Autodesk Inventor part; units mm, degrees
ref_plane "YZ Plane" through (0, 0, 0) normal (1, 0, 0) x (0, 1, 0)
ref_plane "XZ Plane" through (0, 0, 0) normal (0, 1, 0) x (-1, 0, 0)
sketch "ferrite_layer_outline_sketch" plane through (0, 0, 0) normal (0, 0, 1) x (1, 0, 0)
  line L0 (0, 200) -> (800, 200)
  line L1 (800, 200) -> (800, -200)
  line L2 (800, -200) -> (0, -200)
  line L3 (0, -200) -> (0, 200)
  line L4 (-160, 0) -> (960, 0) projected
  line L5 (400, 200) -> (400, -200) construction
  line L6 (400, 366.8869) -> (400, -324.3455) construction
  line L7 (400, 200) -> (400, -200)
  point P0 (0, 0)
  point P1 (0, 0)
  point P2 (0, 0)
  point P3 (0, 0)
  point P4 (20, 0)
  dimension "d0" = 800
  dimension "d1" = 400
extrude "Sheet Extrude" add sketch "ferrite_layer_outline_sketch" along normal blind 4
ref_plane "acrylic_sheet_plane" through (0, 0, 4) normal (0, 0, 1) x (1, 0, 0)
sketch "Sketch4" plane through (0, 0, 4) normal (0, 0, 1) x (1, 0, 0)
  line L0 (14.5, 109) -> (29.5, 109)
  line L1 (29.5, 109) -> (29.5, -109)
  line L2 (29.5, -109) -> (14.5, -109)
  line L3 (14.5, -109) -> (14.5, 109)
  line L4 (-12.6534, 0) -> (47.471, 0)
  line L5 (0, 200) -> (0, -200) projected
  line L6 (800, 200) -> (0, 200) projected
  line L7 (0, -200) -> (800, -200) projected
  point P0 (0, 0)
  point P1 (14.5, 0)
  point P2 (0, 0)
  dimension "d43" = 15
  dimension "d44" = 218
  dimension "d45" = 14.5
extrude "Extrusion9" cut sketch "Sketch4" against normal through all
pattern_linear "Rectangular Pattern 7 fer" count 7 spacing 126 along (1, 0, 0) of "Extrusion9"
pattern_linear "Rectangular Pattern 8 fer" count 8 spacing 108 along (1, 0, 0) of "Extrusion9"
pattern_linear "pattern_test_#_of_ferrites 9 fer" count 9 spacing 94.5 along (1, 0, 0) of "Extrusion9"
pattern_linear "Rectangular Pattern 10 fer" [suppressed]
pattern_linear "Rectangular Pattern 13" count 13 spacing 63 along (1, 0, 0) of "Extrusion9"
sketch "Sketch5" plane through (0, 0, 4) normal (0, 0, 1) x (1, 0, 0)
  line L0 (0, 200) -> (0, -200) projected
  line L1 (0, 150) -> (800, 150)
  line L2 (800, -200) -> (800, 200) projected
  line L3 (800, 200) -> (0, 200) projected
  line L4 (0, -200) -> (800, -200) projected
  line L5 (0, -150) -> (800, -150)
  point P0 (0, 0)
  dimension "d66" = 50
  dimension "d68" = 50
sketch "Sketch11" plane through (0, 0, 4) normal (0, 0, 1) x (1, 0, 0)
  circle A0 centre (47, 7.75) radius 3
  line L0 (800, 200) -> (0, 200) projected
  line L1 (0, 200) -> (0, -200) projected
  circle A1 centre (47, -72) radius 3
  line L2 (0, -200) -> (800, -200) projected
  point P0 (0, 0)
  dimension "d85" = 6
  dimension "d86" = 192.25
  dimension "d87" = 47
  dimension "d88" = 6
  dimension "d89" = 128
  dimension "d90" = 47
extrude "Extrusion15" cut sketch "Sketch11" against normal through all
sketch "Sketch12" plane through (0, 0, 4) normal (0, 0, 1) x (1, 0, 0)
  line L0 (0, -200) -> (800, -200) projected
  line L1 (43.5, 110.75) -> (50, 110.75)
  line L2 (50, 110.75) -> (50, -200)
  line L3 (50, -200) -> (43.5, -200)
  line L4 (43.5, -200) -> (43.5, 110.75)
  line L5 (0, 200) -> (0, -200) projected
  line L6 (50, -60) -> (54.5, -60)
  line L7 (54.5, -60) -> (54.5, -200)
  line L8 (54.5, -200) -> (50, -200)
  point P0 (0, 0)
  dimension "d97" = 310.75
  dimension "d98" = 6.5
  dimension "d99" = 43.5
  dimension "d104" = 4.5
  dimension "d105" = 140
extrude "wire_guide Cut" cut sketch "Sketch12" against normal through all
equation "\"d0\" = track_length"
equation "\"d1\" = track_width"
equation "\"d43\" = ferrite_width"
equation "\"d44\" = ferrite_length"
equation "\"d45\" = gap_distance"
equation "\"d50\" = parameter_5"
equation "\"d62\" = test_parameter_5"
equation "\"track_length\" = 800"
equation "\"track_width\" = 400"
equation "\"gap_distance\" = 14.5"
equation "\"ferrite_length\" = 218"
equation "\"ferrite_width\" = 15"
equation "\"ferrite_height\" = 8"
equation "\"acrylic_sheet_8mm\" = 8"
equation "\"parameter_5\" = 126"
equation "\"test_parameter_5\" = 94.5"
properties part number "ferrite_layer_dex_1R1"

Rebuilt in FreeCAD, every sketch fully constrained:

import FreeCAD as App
import Part
import Sketcher

V = App.Vector
Q = App.Units.Quantity


def add_polygon(sketch, points):
    """Adds a closed chain of lines whose ends are joined by coincident constraints."""
    first, n = sketch.GeometryCount, len(points)
    for a, b in zip(points, points[1:] + points[:1]):
        sketch.addGeometry(Part.LineSegment(App.Vector(*a, 0), App.Vector(*b, 0)), False)
    for i in range(n):
        sketch.addConstraint(Sketcher.Constraint("Coincident", first + i, 2, first + (i + 1) % n, 1))

doc = App.newDocument("Part")
params = doc.addObject("Spreadsheet::Sheet", "Params")
for row, (alias, value) in enumerate([
    ("sketch1_width", "800 mm"),
    ("sketch1_height", "400 mm"),
    ("pad1_length", "4 mm"),
    ("sketch2_width", "15 mm"),
    ("sketch2_height", "218 mm"),
    ("linearpattern_pitch", "126 mm"),
    ("linearpattern2_pitch", "108 mm"),
    ("linearpattern3_pitch", "94.5 mm"),
    ("linearpattern4_pitch", "63 mm"),
    ("sketch3_diameter", "6 mm"),
    ("sketch4_height", "140 mm"),
    ("sketch4_width", "4.5 mm"),
    ("sketch4_width2", "6.5 mm"),
    ("sketch4_height2", "310.75 mm"),
], start=1):
    params.set(f"A{row}", alias)
    params.set(f"B{row}", "=" + value)
    params.setAlias(f"B{row}", alias)

body = doc.addObject("PartDesign::Body", "Body")

sketch1 = body.newObject("Sketcher::SketchObject", "Sketch")
sketch1.AttachmentSupport = (doc.getObject("XY_Plane"), [""])
sketch1.MapMode = "FlatFace"
add_polygon(sketch1, [(0, 200), (0, -200), (800, -200), (800, 200)])
sketch1.addConstraint([
    Sketcher.Constraint("Vertical", 0),
    Sketcher.Constraint("Horizontal", 1),
    Sketcher.Constraint("Vertical", 2),
    Sketcher.Constraint("Horizontal", 3),
    Sketcher.Constraint("Symmetric", 0, 2, 3, 2, -1, 1),
    Sketcher.Constraint("DistanceX", 1, 1, 1, 2, Q("800 mm")),
    Sketcher.Constraint("DistanceY", 0, 2, 0, 1, Q("400 mm")),
])
sketch1.setExpression("Constraints[9]", "Params.sketch1_width")
sketch1.setExpression("Constraints[10]", "Params.sketch1_height")
pad1 = body.newObject("PartDesign::Pad", "Pad")
pad1.Profile = sketch1
pad1.setExpression("Length", "Params.pad1_length")

sketch2 = body.newObject("Sketcher::SketchObject", "Sketch001")
sketch2.AttachmentSupport = (doc.getObject("XY_Plane"), [""])
sketch2.MapMode = "FlatFace"
sketch2.AttachmentOffset = App.Placement(V(0, 0, 4), App.Rotation())
add_polygon(sketch2, [(30, 109), (14, 109), (14, -109), (30, -109)])
sketch2.addConstraint([
    Sketcher.Constraint("Horizontal", 0),
    Sketcher.Constraint("Vertical", 1),
    Sketcher.Constraint("Horizontal", 2),
    Sketcher.Constraint("Vertical", 3),
    Sketcher.Constraint("DistanceX", 0, 2, 0, 1, Q("15 mm")),
    Sketcher.Constraint("DistanceY", 1, 2, 1, 1, Q("218 mm")),
    Sketcher.Constraint("DistanceX", -1, 1, 0, 2, Q("14.5 mm")),
    Sketcher.Constraint("DistanceY", -1, 1, 0, 2, Q("109 mm")),
])
sketch2.setExpression("Constraints[8]", "Params.sketch2_width")
sketch2.setExpression("Constraints[9]", "Params.sketch2_height")
pocket1 = body.newObject("PartDesign::Pocket", "Pocket")
pocket1.Profile = sketch2
pocket1.Type = "ThroughAll"
doc.recompute()

linearpattern = body.newObject("PartDesign::LinearPattern", "LinearPattern")
linearpattern.Originals = [pocket1]
linearpattern.Direction = (doc.getObject("X_Axis"), [""])
linearpattern.Mode = "offset"
linearpattern.setExpression("Offset", "Params.linearpattern_pitch")
linearpattern.Occurrences = 7
body.Tip = linearpattern
doc.recompute()

linearpattern2 = body.newObject("PartDesign::LinearPattern", "LinearPattern001")
linearpattern2.Originals = [pocket1]
linearpattern2.Direction = (doc.getObject("X_Axis"), [""])
linearpattern2.Mode = "offset"
linearpattern2.setExpression("Offset", "Params.linearpattern2_pitch")
linearpattern2.Occurrences = 8
body.Tip = linearpattern2
doc.recompute()

linearpattern3 = body.newObject("PartDesign::LinearPattern", "LinearPattern002")
linearpattern3.Originals = [pocket1]
linearpattern3.Direction = (doc.getObject("X_Axis"), [""])
linearpattern3.Mode = "offset"
linearpattern3.setExpression("Offset", "Params.linearpattern3_pitch")
linearpattern3.Occurrences = 9
body.Tip = linearpattern3
doc.recompute()

linearpattern4 = body.newObject("PartDesign::LinearPattern", "LinearPattern003")
linearpattern4.Originals = [pocket1]
linearpattern4.Direction = (doc.getObject("X_Axis"), [""])
linearpattern4.Mode = "offset"
linearpattern4.setExpression("Offset", "Params.linearpattern4_pitch")
linearpattern4.Occurrences = 13
body.Tip = linearpattern4

sketch3 = body.newObject("Sketcher::SketchObject", "Sketch002")
sketch3.AttachmentSupport = (doc.getObject("XY_Plane"), [""])
sketch3.MapMode = "FlatFace"
sketch3.AttachmentOffset = App.Placement(V(0, 0, 4), App.Rotation())
sketch3.addGeometry([
    Part.Circle(V(47, 7.8, 0), V(0, 0, 1), 3),
    Part.Circle(V(47, -72, 0), V(0, 0, 1), 3),
], False)
sketch3.addConstraint([
    Sketcher.Constraint("Equal", 0, 1),
    Sketcher.Constraint("Vertical", 0, 3, 1, 3),
    Sketcher.Constraint("Diameter", 0, Q("6 mm")),
    Sketcher.Constraint("DistanceX", -1, 1, 0, 3, Q("47 mm")),
    Sketcher.Constraint("DistanceY", 1, 3, -1, 1, Q("72 mm")),
    Sketcher.Constraint("DistanceY", -1, 1, 0, 3, Q("7.75 mm")),
])
sketch3.setExpression("Constraints[2]", "Params.sketch3_diameter")
pocket2 = body.newObject("PartDesign::Pocket", "Pocket001")
pocket2.Profile = sketch3
pocket2.Type = "ThroughAll"

sketch4 = body.newObject("Sketcher::SketchObject", "Sketch003")
sketch4.AttachmentSupport = (doc.getObject("XY_Plane"), [""])
sketch4.MapMode = "FlatFace"
sketch4.AttachmentOffset = App.Placement(V(0, 0, 4), App.Rotation())
add_polygon(sketch4, [(43.5, 110.8), (43.5, -200), (54.5, -200), (54.5, -60), (50, -60), (50, 110.8)])
sketch4.addConstraint([
    Sketcher.Constraint("Vertical", 0),
    Sketcher.Constraint("Horizontal", 1),
    Sketcher.Constraint("Vertical", 2),
    Sketcher.Constraint("Horizontal", 3),
    Sketcher.Constraint("Vertical", 4),
    Sketcher.Constraint("Horizontal", 5),
    Sketcher.Constraint("DistanceY", 2, 1, 2, 2, Q("140 mm")),
    Sketcher.Constraint("DistanceX", 3, 2, 3, 1, Q("4.5 mm")),
    Sketcher.Constraint("DistanceX", 5, 2, 5, 1, Q("6.5 mm")),
    Sketcher.Constraint("DistanceY", 0, 2, 0, 1, Q("310.75 mm")),
    Sketcher.Constraint("DistanceX", -1, 1, 0, 2, Q("43.5 mm")),
    Sketcher.Constraint("DistanceY", 0, 2, -1, 1, Q("200 mm")),
])
sketch4.setExpression("Constraints[12]", "Params.sketch4_height")
sketch4.setExpression("Constraints[13]", "Params.sketch4_width")
sketch4.setExpression("Constraints[14]", "Params.sketch4_width2")
sketch4.setExpression("Constraints[15]", "Params.sketch4_height2")
pocket3 = body.newObject("PartDesign::Pocket", "Pocket002")
pocket3.Profile = sketch4
pocket3.Type = "ThroughAll"

doc.recompute()
